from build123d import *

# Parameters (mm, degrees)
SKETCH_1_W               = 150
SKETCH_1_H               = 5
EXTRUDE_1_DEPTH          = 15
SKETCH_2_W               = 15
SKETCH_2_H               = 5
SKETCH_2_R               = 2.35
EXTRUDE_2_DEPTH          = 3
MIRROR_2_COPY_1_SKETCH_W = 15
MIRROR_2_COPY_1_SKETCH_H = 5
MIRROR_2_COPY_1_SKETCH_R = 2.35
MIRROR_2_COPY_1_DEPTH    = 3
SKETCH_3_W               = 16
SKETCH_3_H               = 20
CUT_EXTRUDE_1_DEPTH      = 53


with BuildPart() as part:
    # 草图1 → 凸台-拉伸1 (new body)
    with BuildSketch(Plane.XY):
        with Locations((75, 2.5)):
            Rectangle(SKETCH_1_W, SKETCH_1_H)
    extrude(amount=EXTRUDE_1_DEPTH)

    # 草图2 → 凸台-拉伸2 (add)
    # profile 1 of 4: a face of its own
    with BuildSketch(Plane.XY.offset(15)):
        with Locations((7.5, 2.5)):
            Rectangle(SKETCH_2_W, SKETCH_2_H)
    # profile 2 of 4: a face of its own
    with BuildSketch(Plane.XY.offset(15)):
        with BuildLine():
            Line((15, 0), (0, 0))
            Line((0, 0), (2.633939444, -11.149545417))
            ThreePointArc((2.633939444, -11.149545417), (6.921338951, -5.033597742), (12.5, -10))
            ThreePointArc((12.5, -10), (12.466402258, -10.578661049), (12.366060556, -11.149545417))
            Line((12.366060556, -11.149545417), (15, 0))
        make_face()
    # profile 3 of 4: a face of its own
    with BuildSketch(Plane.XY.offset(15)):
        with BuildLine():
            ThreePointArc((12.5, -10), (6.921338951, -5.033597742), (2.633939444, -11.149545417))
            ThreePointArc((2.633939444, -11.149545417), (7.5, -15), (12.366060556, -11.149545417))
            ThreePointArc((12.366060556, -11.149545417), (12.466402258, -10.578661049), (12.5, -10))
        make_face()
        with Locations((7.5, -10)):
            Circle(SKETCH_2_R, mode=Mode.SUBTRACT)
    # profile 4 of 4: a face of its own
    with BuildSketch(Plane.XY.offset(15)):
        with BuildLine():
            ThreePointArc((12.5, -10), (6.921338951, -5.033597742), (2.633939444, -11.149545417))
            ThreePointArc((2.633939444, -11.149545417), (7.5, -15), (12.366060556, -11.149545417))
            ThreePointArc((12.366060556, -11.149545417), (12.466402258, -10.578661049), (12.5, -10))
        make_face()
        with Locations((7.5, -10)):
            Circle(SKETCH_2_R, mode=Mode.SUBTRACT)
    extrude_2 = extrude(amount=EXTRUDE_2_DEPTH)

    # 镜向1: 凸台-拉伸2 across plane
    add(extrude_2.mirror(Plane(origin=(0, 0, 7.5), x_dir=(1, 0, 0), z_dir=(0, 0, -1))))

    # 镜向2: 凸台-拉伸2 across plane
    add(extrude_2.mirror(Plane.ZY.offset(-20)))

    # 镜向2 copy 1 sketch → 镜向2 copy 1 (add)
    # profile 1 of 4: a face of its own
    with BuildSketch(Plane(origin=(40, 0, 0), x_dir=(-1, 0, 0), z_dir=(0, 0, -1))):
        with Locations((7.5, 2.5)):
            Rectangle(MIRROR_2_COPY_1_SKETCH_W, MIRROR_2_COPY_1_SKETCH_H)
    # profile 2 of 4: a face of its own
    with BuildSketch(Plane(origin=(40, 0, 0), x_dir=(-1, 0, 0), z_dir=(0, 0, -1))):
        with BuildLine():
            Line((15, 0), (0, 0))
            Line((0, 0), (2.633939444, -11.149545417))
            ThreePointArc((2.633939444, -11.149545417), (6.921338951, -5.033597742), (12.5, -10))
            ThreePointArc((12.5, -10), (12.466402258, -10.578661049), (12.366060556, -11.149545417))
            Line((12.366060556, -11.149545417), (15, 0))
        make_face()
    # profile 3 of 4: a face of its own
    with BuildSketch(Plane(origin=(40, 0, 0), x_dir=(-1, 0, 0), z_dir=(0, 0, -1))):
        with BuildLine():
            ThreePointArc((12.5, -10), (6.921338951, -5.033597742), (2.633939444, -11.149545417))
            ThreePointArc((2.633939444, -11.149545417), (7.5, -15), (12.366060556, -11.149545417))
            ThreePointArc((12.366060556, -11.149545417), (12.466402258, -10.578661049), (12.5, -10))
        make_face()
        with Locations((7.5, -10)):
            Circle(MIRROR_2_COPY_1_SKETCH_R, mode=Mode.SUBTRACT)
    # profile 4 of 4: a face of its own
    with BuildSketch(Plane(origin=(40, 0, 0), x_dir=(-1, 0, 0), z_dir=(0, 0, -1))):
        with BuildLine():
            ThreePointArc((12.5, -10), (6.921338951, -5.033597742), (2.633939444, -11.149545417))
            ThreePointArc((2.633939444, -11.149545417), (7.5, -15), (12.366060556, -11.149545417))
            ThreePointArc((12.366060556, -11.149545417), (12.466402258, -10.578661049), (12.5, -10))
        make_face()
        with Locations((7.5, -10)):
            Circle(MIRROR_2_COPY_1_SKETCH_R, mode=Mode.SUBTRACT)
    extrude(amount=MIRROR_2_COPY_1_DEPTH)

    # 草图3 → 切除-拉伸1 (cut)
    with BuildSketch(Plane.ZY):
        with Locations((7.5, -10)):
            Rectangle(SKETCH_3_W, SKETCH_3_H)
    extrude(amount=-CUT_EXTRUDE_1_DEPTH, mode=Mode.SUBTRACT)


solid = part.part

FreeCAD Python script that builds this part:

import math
import FreeCAD as App
import Part
import Sketcher


def add_polygon(sketch, points):
    """Adds a closed chain of lines whose ends are joined by coincident constraints."""
    first, n = sketch.GeometryCount, len(points)
    for a, b in zip(points, points[1:] + points[:1]):
        sketch.addGeometry(Part.LineSegment(App.Vector(*a, 0), App.Vector(*b, 0)), False)
    for i in range(n):
        sketch.addConstraint(Sketcher.Constraint("Coincident", first + i, 2, first + (i + 1) % n, 1))

doc = App.newDocument("Part")
body = doc.addObject("PartDesign::Body", "Body")

# Sketch on XY plane
sketch1 = body.newObject("Sketcher::SketchObject", "Sketch")
sketch1.AttachmentSupport = (doc.getObject("XY_Plane"), [""])
sketch1.MapMode = "FlatFace"
add_polygon(sketch1, [(0, 5), (0, 0), (150, 0), (150, 5)])  # lines 0-3
sketch1.addConstraint([
    Sketcher.Constraint("Vertical", 0),
    Sketcher.Constraint("Horizontal", 1),
    Sketcher.Constraint("Vertical", 2),
    Sketcher.Constraint("Horizontal", 3),
    Sketcher.Constraint("Coincident", 0, 2, -1, 1),
    Sketcher.Constraint("DistanceX", 1, 1, 1, 2, 150.0),
    Sketcher.Constraint("DistanceY", 0, 2, 0, 1, 5.0),
])
pad1 = body.newObject("PartDesign::Pad", "Pad")
pad1.Profile = sketch1
pad1.Length = 15

# Sketch on XY plane
sketch2 = body.newObject("Sketcher::SketchObject", "Sketch001")
sketch2.AttachmentSupport = (doc.getObject("XY_Plane"), [""])
sketch2.MapMode = "FlatFace"
sketch2.AttachmentOffset = App.Placement(App.Vector(0, 0, 15), App.Rotation())
sketch2.addGeometry([
    Part.LineSegment(App.Vector(0, 5, 0), App.Vector(0, 0, 0)),  # 0
    Part.LineSegment(App.Vector(0, 0, 0), App.Vector(2.6, -11.1, 0)),  # 1
    Part.ArcOfCircle(Part.Circle(App.Vector(7.5, -10, 0), App.Vector(0, 0, 1), 5), math.radians(-167), math.radians(-13)),  # 2
    Part.LineSegment(App.Vector(12.4, -11.1, 0), App.Vector(15, 0, 0)),  # 3
    Part.LineSegment(App.Vector(15, 0, 0), App.Vector(15, 5, 0)),  # 4
    Part.LineSegment(App.Vector(15, 5, 0), App.Vector(0, 5, 0)),  # 5
    Part.Circle(App.Vector(7.5, -10, 0), App.Vector(0, 0, 1), 2.4),  # 6
], False)
sketch2.addConstraint([
    Sketcher.Constraint("Coincident", 0, 2, 1, 1),
    Sketcher.Constraint("Tangent", 1, 2, 2, 1),
    Sketcher.Constraint("Tangent", 2, 2, 3, 1),
    Sketcher.Constraint("Coincident", 3, 2, 4, 1),
    Sketcher.Constraint("Coincident", 4, 2, 5, 1),
    Sketcher.Constraint("Coincident", 5, 2, 0, 1),
    Sketcher.Constraint("Vertical", 0),
    Sketcher.Constraint("Vertical", 4),
    Sketcher.Constraint("Horizontal", 5),
    Sketcher.Constraint("Coincident", 0, 2, -1, 1),
    Sketcher.Constraint("Coincident", 6, 3, 2, 3),
    Sketcher.Constraint("PointOnObject", 3, 2, -1),
    Sketcher.Constraint("Horizontal", 1, 2, 2, 2),
    Sketcher.Constraint("Radius", 2, 5.0),
    Sketcher.Constraint("Diameter", 6, 4.7),
    Sketcher.Constraint("DistanceX", 5, 2, 5, 1, 15.0),
    Sketcher.Constraint("DistanceY", 0, 2, 0, 1, 5.0),
    Sketcher.Constraint("DistanceY", 2, 3, -1, 1, 10.0),
])
pad2 = body.newObject("PartDesign::Pad", "Pad001")
pad2.Profile = sketch2
pad2.Length = 3
doc.recompute()

datumplane = body.newObject("PartDesign::Plane", "DatumPlane")
datumplane.AttachmentSupport = (doc.getObject("XY_Plane"), [""])
datumplane.MapMode = "FlatFace"
datumplane.AttachmentOffset = App.Placement(App.Vector(0, 0, 7.5), App.Rotation())
mirrored = body.newObject("PartDesign::Mirrored", "Mirrored")
mirrored.Originals = [pad2]
mirrored.MirrorPlane = (datumplane, [""])
body.Tip = mirrored
doc.recompute()

datumplane2 = body.newObject("PartDesign::Plane", "DatumPlane001")
datumplane2.AttachmentSupport = (doc.getObject("YZ_Plane"), [""])
datumplane2.MapMode = "FlatFace"
datumplane2.AttachmentOffset = App.Placement(App.Vector(0, 0, 20), App.Rotation())
mirrored2 = body.newObject("PartDesign::Mirrored", "Mirrored001")
mirrored2.Originals = [pad2]
mirrored2.MirrorPlane = (datumplane2, [""])
body.Tip = mirrored2

# Sketch on XY plane
sketch3 = body.newObject("Sketcher::SketchObject", "Sketch002")
sketch3.AttachmentSupport = (doc.getObject("XY_Plane"), [""])
sketch3.MapMode = "FlatFace"
sketch3.addGeometry([
    Part.LineSegment(App.Vector(40, 5, 0), App.Vector(40, 0, 0)),  # 0
    Part.LineSegment(App.Vector(40, 0, 0), App.Vector(37.4, -11.1, 0)),  # 1
    Part.ArcOfCircle(Part.Circle(App.Vector(32.5, -10, 0), App.Vector(0, 0, 1), 5), math.radians(-167), math.radians(-13)),  # 2
    Part.LineSegment(App.Vector(27.6, -11.1, 0), App.Vector(25, 0, 0)),  # 3
    Part.LineSegment(App.Vector(25, 0, 0), App.Vector(25, 5, 0)),  # 4
    Part.LineSegment(App.Vector(25, 5, 0), App.Vector(40, 5, 0)),  # 5
    Part.Circle(App.Vector(32.5, -10, 0), App.Vector(0, 0, 1), 2.4),  # 6
], False)
sketch3.addConstraint([
    Sketcher.Constraint("Coincident", 0, 2, 1, 1),
    Sketcher.Constraint("Tangent", 1, 2, 2, 2),
    Sketcher.Constraint("Tangent", 2, 1, 3, 1),
    Sketcher.Constraint("Coincident", 3, 2, 4, 1),
    Sketcher.Constraint("Coincident", 4, 2, 5, 1),
    Sketcher.Constraint("Coincident", 5, 2, 0, 1),
    Sketcher.Constraint("Vertical", 0),
    Sketcher.Constraint("Vertical", 4),
    Sketcher.Constraint("Horizontal", 5),
    Sketcher.Constraint("Coincident", 6, 3, 2, 3),
    Sketcher.Constraint("PointOnObject", 0, 2, -1),
    Sketcher.Constraint("PointOnObject", 3, 2, -1),
    Sketcher.Constraint("Horizontal", 1, 2, 2, 1),
    Sketcher.Constraint("Radius", 2, 5.0),
    Sketcher.Constraint("Diameter", 6, 4.7),
    Sketcher.Constraint("DistanceX", 5, 1, 5, 2, 15.0),
    Sketcher.Constraint("DistanceY", 0, 2, 0, 1, 5.0),
    Sketcher.Constraint("DistanceY", 2, 3, -1, 1, 10.0),
    Sketcher.Constraint("DistanceX", -1, 1, 0, 2, 40.0),
])
pad3 = body.newObject("PartDesign::Pad", "Pad002")
pad3.Profile = sketch3
pad3.Length = 3
pad3.Reversed = True

# Sketch on YZ plane
sketch4 = body.newObject("Sketcher::SketchObject", "Sketch003")
sketch4.AttachmentSupport = (doc.getObject("YZ_Plane"), [""])
sketch4.MapMode = "FlatFace"
add_polygon(sketch4, [(0, 0), (-20, 0), (-20, 16), (0, 16)])  # lines 0-3
sketch4.addConstraint([
    Sketcher.Constraint("Horizontal", 0),
    Sketcher.Constraint("Vertical", 1),
    Sketcher.Constraint("Horizontal", 2),
    Sketcher.Constraint("Vertical", 3),
    Sketcher.Constraint("PointOnObject", 2, 2, -2),
    Sketcher.Constraint("DistanceX", 0, 2, 0, 1, 20.0),
    Sketcher.Constraint("DistanceY", 1, 1, 1, 2, 16.0),
    Sketcher.Constraint("DistanceY", 0, 2, -1, 1, 0.5),
])
pocket1 = body.newObject("PartDesign::Pocket", "Pocket")
pocket1.Profile = sketch4
pocket1.Length = 53
pocket1.Reversed = True

doc.recompute()
